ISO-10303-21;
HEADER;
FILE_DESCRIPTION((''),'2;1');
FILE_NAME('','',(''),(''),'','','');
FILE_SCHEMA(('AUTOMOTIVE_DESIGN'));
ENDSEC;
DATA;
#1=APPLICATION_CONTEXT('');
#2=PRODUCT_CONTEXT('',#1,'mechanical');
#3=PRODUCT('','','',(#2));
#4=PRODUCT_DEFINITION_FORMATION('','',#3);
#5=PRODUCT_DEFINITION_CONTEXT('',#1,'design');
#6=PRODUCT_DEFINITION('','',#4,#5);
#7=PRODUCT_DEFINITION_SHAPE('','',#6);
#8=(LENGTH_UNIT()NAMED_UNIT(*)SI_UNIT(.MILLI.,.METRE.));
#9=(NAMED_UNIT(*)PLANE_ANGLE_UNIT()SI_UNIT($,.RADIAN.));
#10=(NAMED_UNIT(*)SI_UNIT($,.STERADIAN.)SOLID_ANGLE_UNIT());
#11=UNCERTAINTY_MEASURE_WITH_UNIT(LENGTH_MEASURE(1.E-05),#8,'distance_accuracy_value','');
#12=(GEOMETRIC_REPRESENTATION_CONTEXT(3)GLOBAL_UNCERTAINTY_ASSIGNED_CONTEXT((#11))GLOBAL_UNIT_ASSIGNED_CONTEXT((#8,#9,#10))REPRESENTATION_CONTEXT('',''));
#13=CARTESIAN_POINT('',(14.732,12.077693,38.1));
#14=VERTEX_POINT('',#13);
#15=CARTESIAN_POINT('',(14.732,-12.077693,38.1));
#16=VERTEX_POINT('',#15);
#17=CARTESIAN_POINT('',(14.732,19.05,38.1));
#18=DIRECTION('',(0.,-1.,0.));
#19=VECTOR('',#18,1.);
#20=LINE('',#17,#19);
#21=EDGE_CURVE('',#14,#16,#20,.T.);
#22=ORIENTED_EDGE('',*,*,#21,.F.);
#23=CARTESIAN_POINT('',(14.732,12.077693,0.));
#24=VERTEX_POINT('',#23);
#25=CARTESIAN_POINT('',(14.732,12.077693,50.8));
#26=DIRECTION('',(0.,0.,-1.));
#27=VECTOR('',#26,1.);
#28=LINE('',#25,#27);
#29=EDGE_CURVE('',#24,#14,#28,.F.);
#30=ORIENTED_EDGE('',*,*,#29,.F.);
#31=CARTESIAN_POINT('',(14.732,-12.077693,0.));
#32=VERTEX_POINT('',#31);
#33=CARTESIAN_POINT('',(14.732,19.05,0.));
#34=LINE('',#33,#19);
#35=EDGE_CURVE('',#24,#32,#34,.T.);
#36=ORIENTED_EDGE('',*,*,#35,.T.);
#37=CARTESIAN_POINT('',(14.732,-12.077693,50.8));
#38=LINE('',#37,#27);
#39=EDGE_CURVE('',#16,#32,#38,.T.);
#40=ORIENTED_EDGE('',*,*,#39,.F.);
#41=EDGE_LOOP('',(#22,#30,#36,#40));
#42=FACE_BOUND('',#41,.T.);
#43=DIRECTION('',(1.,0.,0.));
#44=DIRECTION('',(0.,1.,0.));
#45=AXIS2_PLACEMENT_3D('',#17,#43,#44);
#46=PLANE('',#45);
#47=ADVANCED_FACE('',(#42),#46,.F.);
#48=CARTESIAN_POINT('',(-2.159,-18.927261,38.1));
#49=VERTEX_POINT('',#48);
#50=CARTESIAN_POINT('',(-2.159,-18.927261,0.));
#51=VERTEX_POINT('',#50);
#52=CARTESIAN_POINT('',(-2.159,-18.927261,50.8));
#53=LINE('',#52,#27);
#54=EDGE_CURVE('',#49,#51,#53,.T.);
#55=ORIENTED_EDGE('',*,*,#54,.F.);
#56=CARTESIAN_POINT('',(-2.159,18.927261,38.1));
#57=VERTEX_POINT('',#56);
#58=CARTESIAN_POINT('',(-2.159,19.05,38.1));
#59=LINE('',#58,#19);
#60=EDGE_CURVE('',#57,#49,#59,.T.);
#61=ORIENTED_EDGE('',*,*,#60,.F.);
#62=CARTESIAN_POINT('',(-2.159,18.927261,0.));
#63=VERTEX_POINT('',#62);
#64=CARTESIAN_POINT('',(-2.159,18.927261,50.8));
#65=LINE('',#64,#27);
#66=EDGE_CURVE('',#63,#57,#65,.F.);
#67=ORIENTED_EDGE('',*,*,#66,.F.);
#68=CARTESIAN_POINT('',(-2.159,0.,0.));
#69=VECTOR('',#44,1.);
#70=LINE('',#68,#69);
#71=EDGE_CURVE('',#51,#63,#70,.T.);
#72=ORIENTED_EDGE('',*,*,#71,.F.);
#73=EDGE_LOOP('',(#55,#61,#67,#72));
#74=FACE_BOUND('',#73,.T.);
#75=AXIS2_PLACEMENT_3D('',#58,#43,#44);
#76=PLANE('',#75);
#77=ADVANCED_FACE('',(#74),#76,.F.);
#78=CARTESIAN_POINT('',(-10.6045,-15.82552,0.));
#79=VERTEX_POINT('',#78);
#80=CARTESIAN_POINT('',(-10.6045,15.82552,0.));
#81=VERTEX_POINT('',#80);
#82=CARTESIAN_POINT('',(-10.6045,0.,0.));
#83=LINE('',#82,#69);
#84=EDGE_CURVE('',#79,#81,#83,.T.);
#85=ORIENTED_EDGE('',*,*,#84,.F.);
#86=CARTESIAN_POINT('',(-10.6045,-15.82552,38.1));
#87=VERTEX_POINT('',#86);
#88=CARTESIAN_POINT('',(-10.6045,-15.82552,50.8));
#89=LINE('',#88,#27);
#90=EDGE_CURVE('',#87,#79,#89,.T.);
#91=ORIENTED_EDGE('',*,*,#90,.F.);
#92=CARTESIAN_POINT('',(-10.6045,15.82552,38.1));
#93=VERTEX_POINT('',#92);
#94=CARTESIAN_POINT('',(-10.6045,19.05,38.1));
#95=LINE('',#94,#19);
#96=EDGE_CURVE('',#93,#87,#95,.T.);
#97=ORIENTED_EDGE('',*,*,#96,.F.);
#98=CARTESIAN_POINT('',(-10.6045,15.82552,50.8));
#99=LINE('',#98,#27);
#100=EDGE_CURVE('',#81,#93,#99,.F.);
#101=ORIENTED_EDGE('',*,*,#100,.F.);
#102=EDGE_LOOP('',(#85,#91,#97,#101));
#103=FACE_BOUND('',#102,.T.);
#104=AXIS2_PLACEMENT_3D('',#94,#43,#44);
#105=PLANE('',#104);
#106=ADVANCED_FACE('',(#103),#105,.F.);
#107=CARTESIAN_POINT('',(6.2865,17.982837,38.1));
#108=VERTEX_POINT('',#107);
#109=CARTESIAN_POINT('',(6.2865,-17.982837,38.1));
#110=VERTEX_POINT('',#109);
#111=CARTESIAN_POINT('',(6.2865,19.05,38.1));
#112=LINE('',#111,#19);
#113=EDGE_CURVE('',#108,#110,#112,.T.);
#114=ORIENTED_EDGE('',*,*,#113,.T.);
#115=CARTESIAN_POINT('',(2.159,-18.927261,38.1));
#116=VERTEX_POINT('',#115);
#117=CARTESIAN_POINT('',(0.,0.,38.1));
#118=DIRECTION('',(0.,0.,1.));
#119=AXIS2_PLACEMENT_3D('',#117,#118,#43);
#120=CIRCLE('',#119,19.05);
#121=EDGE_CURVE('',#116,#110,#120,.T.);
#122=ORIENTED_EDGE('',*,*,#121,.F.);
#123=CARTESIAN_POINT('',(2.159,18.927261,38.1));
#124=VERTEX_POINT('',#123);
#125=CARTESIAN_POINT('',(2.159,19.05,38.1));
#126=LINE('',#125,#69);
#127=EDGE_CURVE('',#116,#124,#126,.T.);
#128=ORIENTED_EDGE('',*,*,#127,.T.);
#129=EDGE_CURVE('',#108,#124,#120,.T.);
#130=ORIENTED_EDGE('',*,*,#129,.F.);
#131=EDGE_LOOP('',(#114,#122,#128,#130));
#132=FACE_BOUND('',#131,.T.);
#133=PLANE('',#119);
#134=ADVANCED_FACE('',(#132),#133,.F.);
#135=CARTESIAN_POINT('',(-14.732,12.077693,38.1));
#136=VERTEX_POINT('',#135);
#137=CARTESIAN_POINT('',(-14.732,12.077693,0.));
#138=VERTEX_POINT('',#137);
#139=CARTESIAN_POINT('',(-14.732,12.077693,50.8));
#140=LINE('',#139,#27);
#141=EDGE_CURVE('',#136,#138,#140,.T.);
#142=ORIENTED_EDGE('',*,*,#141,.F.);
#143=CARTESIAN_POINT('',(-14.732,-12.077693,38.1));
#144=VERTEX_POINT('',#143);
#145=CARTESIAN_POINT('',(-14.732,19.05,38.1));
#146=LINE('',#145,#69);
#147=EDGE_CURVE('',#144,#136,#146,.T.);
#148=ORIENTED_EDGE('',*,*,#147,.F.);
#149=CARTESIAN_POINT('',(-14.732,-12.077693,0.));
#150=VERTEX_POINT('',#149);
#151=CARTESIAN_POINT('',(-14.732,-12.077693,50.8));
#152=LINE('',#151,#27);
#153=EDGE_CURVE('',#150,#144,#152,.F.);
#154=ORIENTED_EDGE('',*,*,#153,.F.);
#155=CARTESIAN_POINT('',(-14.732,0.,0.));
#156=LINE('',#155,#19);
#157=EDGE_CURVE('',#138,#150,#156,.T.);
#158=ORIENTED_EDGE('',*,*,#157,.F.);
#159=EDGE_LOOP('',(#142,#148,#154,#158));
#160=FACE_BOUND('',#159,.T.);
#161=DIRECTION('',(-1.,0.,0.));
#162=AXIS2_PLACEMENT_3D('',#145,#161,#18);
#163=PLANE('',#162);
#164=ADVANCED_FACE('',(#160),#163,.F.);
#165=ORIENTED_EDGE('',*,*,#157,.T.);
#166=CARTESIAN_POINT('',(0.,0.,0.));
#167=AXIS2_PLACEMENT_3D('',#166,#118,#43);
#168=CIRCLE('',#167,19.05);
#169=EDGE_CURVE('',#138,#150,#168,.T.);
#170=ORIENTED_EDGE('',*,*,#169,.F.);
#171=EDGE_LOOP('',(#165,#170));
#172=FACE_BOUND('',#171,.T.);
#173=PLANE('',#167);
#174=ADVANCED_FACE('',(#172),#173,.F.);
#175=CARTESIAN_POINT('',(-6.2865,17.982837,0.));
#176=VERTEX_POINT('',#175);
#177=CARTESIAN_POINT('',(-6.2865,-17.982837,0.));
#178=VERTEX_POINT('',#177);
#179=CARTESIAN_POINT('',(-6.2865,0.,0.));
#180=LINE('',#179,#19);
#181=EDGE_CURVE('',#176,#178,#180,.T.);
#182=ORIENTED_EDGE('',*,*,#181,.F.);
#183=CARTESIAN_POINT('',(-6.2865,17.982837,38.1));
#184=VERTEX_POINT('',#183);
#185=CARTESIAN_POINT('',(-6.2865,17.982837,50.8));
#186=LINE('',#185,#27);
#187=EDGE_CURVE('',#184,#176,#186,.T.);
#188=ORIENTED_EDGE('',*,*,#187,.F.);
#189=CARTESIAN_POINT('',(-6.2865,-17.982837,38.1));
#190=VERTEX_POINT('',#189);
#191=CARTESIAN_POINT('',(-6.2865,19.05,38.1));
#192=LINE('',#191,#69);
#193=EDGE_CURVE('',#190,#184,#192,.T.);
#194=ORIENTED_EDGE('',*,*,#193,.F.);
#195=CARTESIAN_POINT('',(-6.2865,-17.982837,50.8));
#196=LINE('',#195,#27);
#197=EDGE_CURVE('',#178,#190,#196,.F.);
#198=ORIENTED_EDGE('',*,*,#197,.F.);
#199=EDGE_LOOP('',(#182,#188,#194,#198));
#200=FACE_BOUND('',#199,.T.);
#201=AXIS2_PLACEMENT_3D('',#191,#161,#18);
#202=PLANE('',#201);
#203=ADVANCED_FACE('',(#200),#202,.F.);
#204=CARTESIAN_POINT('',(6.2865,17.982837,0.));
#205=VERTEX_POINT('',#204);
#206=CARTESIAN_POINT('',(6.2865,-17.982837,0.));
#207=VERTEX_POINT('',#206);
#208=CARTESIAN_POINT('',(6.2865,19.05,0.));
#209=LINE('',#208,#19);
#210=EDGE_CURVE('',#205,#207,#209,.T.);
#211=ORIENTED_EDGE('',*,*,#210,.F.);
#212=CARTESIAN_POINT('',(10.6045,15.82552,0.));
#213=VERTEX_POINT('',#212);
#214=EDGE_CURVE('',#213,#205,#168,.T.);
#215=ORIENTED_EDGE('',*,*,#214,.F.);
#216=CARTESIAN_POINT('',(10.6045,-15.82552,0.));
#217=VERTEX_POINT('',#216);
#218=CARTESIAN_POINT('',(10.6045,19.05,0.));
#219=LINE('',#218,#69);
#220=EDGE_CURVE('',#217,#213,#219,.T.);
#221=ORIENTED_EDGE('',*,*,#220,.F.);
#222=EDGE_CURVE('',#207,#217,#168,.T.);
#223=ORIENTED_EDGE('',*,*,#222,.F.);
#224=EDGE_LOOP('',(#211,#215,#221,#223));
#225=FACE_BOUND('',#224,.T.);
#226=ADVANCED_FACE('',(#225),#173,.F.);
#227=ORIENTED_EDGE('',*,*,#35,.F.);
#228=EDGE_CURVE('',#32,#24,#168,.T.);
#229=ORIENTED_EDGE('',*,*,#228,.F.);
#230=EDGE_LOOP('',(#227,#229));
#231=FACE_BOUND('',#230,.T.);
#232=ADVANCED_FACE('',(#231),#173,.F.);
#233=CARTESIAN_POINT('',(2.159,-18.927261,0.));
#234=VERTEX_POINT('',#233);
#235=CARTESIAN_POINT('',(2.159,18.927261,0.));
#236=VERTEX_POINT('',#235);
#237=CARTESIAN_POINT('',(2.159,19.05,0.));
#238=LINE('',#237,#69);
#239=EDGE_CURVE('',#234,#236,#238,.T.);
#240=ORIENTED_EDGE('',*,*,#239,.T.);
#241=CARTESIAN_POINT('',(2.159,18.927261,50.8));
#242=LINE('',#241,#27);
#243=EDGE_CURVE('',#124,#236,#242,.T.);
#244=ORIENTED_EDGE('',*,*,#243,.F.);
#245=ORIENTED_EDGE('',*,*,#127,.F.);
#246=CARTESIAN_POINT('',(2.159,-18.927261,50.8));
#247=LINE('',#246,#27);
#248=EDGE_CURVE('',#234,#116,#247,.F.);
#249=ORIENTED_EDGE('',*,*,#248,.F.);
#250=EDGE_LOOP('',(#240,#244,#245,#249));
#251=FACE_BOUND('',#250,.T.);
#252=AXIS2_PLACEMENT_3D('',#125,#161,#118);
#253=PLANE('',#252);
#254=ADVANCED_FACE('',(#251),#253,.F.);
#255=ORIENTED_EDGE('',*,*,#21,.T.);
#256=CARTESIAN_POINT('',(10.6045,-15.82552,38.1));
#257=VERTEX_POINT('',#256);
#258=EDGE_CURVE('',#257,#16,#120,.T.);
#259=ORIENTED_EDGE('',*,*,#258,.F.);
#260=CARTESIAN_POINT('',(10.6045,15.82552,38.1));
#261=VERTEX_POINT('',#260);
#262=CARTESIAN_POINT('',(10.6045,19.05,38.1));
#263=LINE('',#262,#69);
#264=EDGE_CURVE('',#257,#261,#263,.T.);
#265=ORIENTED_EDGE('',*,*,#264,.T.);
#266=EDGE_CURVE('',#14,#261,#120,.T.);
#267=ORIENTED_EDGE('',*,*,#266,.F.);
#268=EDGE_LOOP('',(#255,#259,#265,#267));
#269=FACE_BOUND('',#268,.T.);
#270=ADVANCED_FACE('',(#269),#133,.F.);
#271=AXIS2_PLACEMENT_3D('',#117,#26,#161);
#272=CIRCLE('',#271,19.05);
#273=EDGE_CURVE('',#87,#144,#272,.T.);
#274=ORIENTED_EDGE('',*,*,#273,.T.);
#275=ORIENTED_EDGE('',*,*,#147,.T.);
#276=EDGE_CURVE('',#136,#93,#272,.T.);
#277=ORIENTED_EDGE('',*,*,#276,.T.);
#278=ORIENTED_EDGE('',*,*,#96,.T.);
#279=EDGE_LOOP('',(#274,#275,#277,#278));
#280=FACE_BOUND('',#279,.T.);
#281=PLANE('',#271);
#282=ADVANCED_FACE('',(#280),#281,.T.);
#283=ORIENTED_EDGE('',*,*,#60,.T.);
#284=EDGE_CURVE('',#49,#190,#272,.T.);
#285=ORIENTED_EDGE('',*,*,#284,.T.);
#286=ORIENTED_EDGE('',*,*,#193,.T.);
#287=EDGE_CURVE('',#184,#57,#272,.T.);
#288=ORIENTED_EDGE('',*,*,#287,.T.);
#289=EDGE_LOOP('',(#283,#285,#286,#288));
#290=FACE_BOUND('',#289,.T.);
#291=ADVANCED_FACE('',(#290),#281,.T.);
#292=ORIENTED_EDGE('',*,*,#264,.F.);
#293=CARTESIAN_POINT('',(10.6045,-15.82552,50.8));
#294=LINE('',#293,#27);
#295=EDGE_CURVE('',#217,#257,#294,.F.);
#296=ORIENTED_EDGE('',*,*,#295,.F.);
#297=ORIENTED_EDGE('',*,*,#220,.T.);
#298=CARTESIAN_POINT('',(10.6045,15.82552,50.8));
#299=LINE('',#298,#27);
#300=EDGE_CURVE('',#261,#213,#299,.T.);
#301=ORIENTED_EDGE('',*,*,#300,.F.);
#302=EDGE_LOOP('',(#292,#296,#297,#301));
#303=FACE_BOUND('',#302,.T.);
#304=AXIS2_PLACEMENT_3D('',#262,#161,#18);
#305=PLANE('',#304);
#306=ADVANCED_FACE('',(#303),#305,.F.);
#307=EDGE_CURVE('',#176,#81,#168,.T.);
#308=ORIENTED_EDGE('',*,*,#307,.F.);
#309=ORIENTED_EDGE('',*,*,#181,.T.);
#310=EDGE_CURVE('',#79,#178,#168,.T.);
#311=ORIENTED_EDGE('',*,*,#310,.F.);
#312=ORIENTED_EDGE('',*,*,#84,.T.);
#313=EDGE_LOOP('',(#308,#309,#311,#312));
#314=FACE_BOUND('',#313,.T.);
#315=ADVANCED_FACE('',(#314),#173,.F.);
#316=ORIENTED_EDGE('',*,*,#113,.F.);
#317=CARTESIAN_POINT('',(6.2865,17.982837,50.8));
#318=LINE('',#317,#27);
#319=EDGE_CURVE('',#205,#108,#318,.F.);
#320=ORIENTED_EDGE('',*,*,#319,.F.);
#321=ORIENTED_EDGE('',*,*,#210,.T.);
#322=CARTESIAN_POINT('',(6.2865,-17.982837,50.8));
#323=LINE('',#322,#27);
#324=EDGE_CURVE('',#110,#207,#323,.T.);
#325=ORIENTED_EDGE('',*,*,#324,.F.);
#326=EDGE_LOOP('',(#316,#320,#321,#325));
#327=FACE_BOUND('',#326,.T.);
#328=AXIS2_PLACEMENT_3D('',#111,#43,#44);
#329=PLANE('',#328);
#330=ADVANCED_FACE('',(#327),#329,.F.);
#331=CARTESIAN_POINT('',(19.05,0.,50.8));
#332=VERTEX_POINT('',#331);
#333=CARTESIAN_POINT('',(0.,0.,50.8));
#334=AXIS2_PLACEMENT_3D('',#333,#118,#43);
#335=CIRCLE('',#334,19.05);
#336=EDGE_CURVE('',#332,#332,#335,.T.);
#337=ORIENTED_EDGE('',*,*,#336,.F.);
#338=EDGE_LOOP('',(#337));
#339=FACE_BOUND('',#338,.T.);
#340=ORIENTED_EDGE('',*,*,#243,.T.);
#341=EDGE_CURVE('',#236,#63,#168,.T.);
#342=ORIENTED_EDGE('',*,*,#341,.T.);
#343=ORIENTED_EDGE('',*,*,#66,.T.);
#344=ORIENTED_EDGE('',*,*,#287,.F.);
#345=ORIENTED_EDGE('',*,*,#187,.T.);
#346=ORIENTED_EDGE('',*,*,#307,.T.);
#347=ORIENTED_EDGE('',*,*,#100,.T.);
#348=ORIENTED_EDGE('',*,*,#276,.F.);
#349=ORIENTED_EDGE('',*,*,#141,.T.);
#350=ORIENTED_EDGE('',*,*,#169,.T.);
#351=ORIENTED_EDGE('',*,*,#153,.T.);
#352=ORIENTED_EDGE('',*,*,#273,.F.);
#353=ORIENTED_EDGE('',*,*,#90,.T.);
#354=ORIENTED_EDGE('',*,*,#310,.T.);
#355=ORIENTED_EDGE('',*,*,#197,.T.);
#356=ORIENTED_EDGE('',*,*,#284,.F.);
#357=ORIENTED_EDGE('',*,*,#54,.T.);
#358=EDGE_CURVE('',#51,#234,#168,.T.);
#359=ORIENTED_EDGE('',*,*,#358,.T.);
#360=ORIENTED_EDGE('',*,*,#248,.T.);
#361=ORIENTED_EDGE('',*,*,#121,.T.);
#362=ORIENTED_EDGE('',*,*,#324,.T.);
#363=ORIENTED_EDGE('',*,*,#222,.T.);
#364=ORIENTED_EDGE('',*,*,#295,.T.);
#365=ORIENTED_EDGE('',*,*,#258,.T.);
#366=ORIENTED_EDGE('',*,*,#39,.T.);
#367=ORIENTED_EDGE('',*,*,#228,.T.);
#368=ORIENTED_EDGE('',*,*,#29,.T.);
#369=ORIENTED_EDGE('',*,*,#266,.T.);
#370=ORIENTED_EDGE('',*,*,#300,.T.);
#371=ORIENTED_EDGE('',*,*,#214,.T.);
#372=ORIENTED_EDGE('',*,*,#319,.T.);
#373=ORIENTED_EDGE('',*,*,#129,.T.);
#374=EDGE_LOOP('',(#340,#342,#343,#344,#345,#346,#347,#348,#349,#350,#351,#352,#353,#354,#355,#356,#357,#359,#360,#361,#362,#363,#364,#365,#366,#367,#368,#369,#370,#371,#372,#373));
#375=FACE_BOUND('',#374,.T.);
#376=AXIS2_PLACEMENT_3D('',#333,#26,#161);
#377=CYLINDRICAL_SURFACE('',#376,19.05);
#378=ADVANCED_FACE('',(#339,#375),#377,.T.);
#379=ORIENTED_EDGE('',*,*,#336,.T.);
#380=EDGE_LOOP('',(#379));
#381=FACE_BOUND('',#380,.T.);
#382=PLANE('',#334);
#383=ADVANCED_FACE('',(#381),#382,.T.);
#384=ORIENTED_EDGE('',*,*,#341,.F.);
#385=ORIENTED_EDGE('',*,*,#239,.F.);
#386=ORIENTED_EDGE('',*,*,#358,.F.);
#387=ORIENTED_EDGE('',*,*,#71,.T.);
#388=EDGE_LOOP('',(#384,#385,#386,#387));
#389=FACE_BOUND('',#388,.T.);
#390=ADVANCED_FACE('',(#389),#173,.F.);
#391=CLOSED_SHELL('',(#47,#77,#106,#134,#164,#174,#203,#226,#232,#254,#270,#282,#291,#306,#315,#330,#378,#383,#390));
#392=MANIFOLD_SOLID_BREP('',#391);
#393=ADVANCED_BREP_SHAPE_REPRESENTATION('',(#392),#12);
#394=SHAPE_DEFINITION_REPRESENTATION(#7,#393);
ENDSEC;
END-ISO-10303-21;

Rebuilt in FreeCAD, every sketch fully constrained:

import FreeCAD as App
import Part
import Sketcher

V = App.Vector
Q = App.Units.Quantity


def add_polygon(sketch, points):
    """Adds a closed chain of lines whose ends are joined by coincident constraints."""
    first, n = sketch.GeometryCount, len(points)
    for a, b in zip(points, points[1:] + points[:1]):
        sketch.addGeometry(Part.LineSegment(App.Vector(*a, 0), App.Vector(*b, 0)), False)
    for i in range(n):
        sketch.addConstraint(Sketcher.Constraint("Coincident", first + i, 2, first + (i + 1) % n, 1))

doc = App.newDocument("Part")
body = doc.addObject("PartDesign::Body", "Body")

# Sketch on XY plane
sketch1 = body.newObject("Sketcher::SketchObject", "Sketch")
sketch1.AttachmentSupport = (doc.getObject("XY_Plane"), [""])
sketch1.MapMode = "FlatFace"
sketch1.addGeometry(Part.Circle(V(0, 0, 0), V(0, 0, 1), 19), False)
sketch1.addConstraint(Sketcher.Constraint("Coincident", 0, 3, -1, 1))
sketch1.addConstraint(Sketcher.Constraint("Diameter", 0, Q("1.5 in")))
pad1 = body.newObject("PartDesign::Pad", "Pad")
pad1.Profile = sketch1
pad1.Length = Q("2 in")

# Sketch on XY plane
sketch2 = body.newObject("Sketcher::SketchObject", "Sketch001")
sketch2.AttachmentSupport = (doc.getObject("XY_Plane"), [""])
sketch2.MapMode = "FlatFace"
add_polygon(sketch2, [(-2.2, 19.1), (-2.2, -19.1), (-6.3, -19.1), (-6.3, 19.1)])  # lines 0-3
sketch2.addConstraint(Sketcher.Constraint("Vertical", 0))
sketch2.addConstraint(Sketcher.Constraint("Horizontal", 1))
sketch2.addConstraint(Sketcher.Constraint("Vertical", 2))
sketch2.addConstraint(Sketcher.Constraint("Horizontal", 3))
sketch2.addConstraint(Sketcher.Constraint("DistanceY", 0, 2, 0, 1, Q("1.5 in")))
sketch2.addConstraint(Sketcher.Constraint("DistanceY", 0, 2, -1, 1, Q("0.75 in")))
sketch2.addConstraint(Sketcher.Constraint("DistanceX", 1, 2, 1, 1, Q("0.1625 in")))
sketch2.addConstraint(Sketcher.Constraint("DistanceX", 0, 2, -1, 1, Q("0.085 in")))
pocket1 = body.newObject("PartDesign::Pocket", "Pocket")
pocket1.Profile = sketch2
pocket1.Length = Q("1.5 in")
pocket1.Reversed = True

# Sketch on XY plane
sketch3 = body.newObject("Sketcher::SketchObject", "Sketch002")
sketch3.AttachmentSupport = (doc.getObject("XY_Plane"), [""])
sketch3.MapMode = "FlatFace"
add_polygon(sketch3, [(6.3, 19.1), (6.3, -19.1), (2.2, -19.1), (2.2, 19.1)])  # lines 0-3
add_polygon(sketch3, [(14.7, 19.1), (14.7, -19.1), (10.6, -19.1), (10.6, 19.1)])  # lines 4-7
add_polygon(sketch3, [(-10.6, 19.1), (-10.6, -19.1), (-14.7, -19.1), (-14.7, 19.1)])  # lines 8-11
sketch3.addConstraint(Sketcher.Constraint("Vertical", 0))
sketch3.addConstraint(Sketcher.Constraint("Horizontal", 1))
sketch3.addConstraint(Sketcher.Constraint("Vertical", 2))
sketch3.addConstraint(Sketcher.Constraint("Horizontal", 3))
sketch3.addConstraint(Sketcher.Constraint("Vertical", 4))
sketch3.addConstraint(Sketcher.Constraint("Horizontal", 5))
sketch3.addConstraint(Sketcher.Constraint("Vertical", 6))
sketch3.addConstraint(Sketcher.Constraint("Horizontal", 7))
sketch3.addConstraint(Sketcher.Constraint("Vertical", 8))
sketch3.addConstraint(Sketcher.Constraint("Horizontal", 9))
sketch3.addConstraint(Sketcher.Constraint("Vertical", 10))
sketch3.addConstraint(Sketcher.Constraint("Horizontal", 11))
sketch3.addConstraint(Sketcher.Constraint("Symmetric", 6, 2, 8, 2, -1, 1))
sketch3.addConstraint(Sketcher.Constraint("Symmetric", 4, 2, 10, 2, -1, 1))
sketch3.addConstraint(Sketcher.Constraint("Horizontal", 1, 2, 4, 2))
sketch3.addConstraint(Sketcher.Constraint("Horizontal", 3, 2, 6, 2))
sketch3.addConstraint(Sketcher.Constraint("Horizontal", 5, 2, 8, 2))
sketch3.addConstraint(Sketcher.Constraint("Equal", 3, 5))
sketch3.addConstraint(Sketcher.Constraint("DistanceY", 0, 2, 0, 1, Q("1.5 in")))
sketch3.addConstraint(Sketcher.Constraint("DistanceX", -1, 1, 4, 2, Q("0.58 in")))
sketch3.addConstraint(Sketcher.Constraint("DistanceX", 0, 2, 5, 2, Q("0.17 in")))
sketch3.addConstraint(Sketcher.Constraint("DistanceX", 1, 2, 1, 1, Q("0.1625 in")))
pocket2 = body.newObject("PartDesign::Pocket", "Pocket001")
pocket2.Profile = sketch3
pocket2.Length = Q("1.5 in")
pocket2.Reversed = True

doc.recompute()
